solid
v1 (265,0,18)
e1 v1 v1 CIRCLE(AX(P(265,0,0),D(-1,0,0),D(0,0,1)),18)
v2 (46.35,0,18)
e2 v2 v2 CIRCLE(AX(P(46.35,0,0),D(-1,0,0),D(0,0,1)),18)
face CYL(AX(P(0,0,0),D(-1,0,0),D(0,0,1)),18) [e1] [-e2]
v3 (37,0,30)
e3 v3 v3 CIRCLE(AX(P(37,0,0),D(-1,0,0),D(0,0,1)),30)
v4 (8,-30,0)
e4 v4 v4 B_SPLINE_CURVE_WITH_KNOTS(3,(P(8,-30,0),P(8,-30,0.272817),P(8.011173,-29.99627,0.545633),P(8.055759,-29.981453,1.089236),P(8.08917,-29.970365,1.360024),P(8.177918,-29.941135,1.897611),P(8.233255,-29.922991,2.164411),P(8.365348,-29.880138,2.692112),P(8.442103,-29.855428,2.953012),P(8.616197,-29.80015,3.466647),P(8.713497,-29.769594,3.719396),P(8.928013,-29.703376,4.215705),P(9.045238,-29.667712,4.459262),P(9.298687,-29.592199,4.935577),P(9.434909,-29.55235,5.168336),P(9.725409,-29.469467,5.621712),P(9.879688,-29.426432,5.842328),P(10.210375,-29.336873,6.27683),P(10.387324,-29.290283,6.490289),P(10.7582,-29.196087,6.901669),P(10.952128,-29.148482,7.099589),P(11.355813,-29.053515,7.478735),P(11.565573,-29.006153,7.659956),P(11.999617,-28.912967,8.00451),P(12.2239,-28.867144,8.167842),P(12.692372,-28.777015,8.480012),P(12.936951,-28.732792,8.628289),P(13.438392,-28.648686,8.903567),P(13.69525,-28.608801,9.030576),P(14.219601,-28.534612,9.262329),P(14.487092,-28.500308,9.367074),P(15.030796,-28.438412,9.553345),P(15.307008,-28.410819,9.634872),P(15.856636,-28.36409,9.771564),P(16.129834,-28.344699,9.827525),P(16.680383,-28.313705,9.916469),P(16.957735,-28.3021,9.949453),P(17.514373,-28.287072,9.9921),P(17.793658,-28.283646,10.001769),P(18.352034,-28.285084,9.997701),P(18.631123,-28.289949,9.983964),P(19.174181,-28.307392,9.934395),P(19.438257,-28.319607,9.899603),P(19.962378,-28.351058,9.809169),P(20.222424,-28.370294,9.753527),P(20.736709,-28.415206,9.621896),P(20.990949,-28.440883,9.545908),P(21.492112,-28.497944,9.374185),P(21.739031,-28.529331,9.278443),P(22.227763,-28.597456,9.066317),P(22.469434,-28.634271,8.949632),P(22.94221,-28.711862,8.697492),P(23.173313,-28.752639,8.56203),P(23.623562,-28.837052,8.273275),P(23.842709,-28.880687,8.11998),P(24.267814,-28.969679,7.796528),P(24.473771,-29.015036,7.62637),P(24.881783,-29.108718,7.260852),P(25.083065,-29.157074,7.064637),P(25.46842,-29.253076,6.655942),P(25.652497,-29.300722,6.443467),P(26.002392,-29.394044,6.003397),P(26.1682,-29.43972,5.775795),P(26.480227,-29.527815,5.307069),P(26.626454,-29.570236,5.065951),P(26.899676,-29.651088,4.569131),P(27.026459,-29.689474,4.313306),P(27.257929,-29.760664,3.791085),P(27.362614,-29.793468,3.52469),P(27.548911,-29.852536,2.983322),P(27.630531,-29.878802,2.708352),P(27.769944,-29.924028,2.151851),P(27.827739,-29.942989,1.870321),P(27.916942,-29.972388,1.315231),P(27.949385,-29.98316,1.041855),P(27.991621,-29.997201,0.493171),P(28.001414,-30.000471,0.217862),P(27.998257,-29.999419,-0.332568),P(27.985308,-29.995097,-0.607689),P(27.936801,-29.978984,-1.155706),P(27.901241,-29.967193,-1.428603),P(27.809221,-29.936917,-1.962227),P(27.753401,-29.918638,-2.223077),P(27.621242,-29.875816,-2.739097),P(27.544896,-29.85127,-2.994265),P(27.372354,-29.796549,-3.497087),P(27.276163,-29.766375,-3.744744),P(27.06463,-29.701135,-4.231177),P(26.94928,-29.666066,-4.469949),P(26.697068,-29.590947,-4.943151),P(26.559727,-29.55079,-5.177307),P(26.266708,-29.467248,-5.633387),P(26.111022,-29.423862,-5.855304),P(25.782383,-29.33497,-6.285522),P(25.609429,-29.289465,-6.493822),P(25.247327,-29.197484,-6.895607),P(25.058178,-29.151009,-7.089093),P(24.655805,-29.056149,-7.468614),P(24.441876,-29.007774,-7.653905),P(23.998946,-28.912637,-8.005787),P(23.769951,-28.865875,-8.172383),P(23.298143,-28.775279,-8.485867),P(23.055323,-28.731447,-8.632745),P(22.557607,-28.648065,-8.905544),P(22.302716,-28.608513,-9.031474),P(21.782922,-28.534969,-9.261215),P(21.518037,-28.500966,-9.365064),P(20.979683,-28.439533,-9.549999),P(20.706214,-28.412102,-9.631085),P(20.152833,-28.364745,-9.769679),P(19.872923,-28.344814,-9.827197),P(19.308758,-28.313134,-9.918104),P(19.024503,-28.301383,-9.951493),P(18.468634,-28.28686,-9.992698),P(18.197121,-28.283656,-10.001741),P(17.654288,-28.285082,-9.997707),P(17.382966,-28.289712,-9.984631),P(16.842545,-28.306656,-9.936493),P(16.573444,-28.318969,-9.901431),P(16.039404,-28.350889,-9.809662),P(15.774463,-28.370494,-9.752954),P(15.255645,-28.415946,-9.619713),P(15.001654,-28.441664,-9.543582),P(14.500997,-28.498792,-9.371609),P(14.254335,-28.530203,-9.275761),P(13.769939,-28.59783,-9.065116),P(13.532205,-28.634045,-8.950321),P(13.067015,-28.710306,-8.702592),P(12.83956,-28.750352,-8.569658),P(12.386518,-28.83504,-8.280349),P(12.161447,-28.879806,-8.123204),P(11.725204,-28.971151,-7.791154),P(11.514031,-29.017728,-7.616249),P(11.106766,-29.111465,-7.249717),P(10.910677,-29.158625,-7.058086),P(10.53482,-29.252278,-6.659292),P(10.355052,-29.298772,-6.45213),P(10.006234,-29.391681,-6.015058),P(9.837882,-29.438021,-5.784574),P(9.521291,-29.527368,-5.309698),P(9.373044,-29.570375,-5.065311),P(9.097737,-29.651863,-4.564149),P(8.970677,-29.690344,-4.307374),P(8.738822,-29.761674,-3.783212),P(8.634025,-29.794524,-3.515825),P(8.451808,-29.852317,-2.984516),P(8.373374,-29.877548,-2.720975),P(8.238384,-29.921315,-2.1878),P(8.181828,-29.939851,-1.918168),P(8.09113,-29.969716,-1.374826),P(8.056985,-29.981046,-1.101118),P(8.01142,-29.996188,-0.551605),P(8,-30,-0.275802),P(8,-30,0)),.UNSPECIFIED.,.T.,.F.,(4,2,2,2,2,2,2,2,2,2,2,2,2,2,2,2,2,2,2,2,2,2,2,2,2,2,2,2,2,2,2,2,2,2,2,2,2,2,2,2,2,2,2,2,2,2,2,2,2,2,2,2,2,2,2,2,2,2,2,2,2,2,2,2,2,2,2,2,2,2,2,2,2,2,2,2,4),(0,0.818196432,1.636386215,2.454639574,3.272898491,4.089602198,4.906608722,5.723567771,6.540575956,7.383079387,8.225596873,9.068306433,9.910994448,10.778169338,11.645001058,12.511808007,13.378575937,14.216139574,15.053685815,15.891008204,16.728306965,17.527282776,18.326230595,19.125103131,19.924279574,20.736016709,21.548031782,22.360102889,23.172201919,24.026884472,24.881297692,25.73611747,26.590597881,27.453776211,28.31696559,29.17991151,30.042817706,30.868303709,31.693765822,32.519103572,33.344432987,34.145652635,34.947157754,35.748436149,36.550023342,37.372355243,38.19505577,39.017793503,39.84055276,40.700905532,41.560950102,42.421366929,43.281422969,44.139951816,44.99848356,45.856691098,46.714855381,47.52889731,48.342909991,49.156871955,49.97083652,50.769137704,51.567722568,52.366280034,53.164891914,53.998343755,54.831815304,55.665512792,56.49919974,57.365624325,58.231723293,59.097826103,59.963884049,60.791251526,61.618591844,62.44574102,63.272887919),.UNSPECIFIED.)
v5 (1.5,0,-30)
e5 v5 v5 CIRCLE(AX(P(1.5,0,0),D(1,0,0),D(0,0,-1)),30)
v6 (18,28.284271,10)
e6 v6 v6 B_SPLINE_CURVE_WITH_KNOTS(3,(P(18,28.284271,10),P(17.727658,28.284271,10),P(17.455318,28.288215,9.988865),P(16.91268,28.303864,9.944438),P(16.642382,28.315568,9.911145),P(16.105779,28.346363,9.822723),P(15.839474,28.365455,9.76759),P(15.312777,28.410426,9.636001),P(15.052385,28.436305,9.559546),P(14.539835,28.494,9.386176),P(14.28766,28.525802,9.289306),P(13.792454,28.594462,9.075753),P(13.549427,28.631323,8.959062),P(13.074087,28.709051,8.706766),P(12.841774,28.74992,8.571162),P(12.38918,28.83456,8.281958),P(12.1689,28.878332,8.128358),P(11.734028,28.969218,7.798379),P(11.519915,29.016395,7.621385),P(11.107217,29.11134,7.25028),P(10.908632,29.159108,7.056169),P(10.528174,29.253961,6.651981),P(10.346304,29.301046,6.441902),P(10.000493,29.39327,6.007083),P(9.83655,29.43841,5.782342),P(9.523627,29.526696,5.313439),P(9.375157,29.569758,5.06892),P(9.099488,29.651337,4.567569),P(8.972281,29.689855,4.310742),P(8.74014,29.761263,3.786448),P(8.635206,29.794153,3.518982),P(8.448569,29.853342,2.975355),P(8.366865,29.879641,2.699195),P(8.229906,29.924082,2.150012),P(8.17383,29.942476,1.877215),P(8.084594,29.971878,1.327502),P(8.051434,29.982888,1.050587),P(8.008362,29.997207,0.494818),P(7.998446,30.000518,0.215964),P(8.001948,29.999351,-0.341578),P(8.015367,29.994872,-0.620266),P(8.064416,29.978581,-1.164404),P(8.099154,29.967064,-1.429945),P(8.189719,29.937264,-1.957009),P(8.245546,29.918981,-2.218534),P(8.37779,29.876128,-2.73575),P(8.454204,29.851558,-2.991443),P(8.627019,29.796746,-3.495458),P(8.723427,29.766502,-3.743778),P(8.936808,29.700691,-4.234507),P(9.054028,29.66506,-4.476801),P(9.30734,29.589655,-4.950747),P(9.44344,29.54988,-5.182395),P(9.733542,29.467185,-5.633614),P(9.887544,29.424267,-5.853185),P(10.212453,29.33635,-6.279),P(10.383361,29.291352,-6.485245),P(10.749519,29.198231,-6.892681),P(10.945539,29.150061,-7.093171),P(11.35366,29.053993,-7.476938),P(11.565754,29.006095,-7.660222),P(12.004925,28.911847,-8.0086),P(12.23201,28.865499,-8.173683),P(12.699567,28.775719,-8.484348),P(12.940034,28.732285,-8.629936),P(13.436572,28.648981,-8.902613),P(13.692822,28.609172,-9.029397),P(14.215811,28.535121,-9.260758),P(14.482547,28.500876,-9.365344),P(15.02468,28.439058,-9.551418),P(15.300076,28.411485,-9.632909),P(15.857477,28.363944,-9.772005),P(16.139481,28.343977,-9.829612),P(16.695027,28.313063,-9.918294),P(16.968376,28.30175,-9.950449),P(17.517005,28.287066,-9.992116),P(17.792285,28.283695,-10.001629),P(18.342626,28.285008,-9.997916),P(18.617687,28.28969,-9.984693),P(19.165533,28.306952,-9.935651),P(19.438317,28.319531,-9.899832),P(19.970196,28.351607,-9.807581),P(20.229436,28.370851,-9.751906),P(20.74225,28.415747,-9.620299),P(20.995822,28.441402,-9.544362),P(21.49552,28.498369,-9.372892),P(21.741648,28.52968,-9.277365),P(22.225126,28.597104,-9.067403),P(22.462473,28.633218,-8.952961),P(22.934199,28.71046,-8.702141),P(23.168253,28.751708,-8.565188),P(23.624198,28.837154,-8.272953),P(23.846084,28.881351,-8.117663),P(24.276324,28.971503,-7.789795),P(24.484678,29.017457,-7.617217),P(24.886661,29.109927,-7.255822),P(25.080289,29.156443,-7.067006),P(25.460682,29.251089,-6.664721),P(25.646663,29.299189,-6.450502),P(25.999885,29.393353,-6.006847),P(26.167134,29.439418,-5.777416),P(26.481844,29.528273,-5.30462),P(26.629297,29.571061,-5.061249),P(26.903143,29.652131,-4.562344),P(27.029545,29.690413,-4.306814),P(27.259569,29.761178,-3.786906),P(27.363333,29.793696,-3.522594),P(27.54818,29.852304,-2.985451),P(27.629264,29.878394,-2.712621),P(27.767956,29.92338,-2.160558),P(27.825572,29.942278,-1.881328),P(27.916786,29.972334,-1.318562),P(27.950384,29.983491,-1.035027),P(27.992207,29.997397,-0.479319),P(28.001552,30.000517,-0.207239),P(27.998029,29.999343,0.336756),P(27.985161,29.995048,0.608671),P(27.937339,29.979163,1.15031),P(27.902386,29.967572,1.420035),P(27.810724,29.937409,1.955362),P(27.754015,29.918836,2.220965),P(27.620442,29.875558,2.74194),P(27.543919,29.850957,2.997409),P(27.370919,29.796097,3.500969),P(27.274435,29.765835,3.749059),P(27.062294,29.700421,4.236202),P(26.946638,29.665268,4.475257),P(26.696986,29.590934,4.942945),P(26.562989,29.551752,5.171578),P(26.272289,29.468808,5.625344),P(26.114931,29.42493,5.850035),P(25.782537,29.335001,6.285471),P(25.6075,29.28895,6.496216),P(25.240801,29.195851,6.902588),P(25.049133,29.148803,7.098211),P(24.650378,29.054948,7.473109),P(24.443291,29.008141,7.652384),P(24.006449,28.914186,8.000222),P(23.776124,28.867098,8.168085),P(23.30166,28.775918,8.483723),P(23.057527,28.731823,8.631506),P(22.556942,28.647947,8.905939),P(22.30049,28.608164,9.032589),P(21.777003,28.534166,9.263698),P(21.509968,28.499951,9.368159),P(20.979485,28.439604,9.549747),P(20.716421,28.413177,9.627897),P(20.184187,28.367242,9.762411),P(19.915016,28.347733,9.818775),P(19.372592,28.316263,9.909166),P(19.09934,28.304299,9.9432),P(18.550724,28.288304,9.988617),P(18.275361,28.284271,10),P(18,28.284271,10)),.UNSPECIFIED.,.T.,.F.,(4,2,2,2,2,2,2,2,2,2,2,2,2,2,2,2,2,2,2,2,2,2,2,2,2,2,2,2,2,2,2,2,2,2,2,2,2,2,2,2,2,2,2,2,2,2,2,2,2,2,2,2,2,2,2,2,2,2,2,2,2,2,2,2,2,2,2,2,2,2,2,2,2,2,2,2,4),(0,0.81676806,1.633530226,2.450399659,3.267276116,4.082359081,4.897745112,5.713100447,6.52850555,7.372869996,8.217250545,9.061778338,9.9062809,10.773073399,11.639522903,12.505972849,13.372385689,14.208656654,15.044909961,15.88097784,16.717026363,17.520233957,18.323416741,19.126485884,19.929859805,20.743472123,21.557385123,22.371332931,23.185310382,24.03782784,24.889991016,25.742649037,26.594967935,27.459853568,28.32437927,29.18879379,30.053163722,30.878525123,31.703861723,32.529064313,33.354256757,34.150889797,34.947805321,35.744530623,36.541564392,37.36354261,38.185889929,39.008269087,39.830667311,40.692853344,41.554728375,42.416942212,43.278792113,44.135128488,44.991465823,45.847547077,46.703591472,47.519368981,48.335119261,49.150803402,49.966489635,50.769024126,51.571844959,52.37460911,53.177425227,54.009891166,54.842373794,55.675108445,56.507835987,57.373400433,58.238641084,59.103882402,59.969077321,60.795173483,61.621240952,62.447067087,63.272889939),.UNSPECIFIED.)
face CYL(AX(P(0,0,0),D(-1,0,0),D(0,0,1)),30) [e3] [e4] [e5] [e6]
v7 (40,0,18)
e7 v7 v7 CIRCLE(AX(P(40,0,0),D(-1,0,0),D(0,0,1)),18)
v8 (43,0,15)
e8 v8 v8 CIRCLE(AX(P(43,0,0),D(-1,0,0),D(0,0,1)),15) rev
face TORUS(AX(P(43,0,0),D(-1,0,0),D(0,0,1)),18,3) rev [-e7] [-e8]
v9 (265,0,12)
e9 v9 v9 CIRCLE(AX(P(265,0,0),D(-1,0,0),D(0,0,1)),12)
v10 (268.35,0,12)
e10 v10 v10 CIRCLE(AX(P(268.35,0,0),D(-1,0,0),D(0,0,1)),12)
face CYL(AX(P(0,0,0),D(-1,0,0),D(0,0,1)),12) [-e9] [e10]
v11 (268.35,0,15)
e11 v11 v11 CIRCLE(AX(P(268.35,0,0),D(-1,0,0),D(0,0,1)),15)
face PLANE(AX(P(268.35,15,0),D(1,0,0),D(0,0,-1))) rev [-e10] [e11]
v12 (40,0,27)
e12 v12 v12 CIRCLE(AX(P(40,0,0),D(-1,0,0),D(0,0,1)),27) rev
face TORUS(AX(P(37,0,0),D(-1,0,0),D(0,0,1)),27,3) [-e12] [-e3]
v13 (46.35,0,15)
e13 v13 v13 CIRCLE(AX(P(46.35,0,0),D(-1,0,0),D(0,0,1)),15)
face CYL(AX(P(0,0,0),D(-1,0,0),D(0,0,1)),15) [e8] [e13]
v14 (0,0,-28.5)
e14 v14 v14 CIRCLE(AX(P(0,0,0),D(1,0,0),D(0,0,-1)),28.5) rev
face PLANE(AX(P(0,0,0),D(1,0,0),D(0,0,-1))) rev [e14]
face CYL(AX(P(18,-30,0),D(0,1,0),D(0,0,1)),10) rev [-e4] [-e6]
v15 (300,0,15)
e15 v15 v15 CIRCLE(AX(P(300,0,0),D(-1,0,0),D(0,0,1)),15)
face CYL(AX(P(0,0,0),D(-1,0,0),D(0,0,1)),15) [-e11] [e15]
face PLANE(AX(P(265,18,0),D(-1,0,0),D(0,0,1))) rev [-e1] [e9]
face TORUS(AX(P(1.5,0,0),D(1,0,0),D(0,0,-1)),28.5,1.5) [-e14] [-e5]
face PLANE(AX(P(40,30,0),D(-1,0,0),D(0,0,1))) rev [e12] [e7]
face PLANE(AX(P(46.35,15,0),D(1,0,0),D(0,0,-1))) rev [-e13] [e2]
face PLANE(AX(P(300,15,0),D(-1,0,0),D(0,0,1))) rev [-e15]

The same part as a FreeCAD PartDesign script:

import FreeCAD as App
import Part
import Sketcher
Q = App.Units.Quantity


def edges_at(feature, points):
    """Names of the edges that pass closest to the given points."""
    edges = feature.Shape.Edges
    near = lambda p: min(range(len(edges)), key=lambda i: edges[i].distToShape(Part.Vertex(*p))[0])
    return sorted({f"Edge{near(p) + 1}" for p in points})

doc = App.newDocument("Part")
params = doc.addObject("Spreadsheet::Sheet", "Params")
for row, (alias, value) in enumerate([
    ("sketch1_width", "300 mm"),
    ("sketch1_width2", "40 mm"),
    ("sketch1_height", "30 mm"),
    ("sketch1_height2", "3 mm"),
    ("sketch1_width3", "31.65 mm"),
    ("revolution_angle", "360 deg"),
    ("fillet_radius", "1.5 mm"),
    ("sketch2_diameter", "20 mm"),
    ("fillet2_radius", "3 mm"),
], start=1):
    params.set(f"A{row}", alias)
    params.set(f"B{row}", "=" + value)
    params.setAlias(f"B{row}", alias)

body = doc.addObject("PartDesign::Body", "Body")

sketch1 = body.newObject("Sketcher::SketchObject", "Sketch")
sketch1.AttachmentSupport = (doc.getObject("XY_Plane"), [""])
sketch1.MapMode = "FlatFace"
sketch1.addGeometry([
    Part.LineSegment(App.Vector(0, 30, 0), App.Vector(0, 0, 0)),
    Part.LineSegment(App.Vector(0, 0, 0), App.Vector(300, 0, 0)),
    Part.LineSegment(App.Vector(300, 0, 0), App.Vector(300, 15, 0)),
    Part.LineSegment(App.Vector(300, 15, 0), App.Vector(268.35, 15, 0)),
    Part.LineSegment(App.Vector(268.35, 15, 0), App.Vector(268.35, 12, 0)),
    Part.LineSegment(App.Vector(268.35, 12, 0), App.Vector(265, 12, 0)),
    Part.LineSegment(App.Vector(265, 12, 0), App.Vector(265, 18, 0)),
    Part.LineSegment(App.Vector(265, 18, 0), App.Vector(46.35, 18, 0)),
    Part.LineSegment(App.Vector(46.35, 18, 0), App.Vector(46.35, 15, 0)),
    Part.LineSegment(App.Vector(46.35, 15, 0), App.Vector(40, 15, 0)),
    Part.LineSegment(App.Vector(40, 15, 0), App.Vector(40, 30, 0)),
    Part.LineSegment(App.Vector(40, 30, 0), App.Vector(0, 30, 0)),
], False)
sketch1.addConstraint([
    Sketcher.Constraint("Coincident", 0, 2, 1, 1),
    Sketcher.Constraint("Coincident", 1, 2, 2, 1),
    Sketcher.Constraint("Coincident", 2, 2, 3, 1),
    Sketcher.Constraint("Coincident", 3, 2, 4, 1),
    Sketcher.Constraint("Coincident", 4, 2, 5, 1),
    Sketcher.Constraint("Coincident", 5, 2, 6, 1),
    Sketcher.Constraint("Coincident", 6, 2, 7, 1),
    Sketcher.Constraint("Coincident", 7, 2, 8, 1),
    Sketcher.Constraint("Coincident", 8, 2, 9, 1),
    Sketcher.Constraint("Coincident", 9, 2, 10, 1),
    Sketcher.Constraint("Coincident", 10, 2, 11, 1),
    Sketcher.Constraint("Coincident", 11, 2, 0, 1),
    Sketcher.Constraint("Vertical", 0),
    Sketcher.Constraint("Horizontal", 1),
    Sketcher.Constraint("Vertical", 2),
    Sketcher.Constraint("Horizontal", 3),
    Sketcher.Constraint("Vertical", 4),
    Sketcher.Constraint("Horizontal", 5),
    Sketcher.Constraint("Vertical", 6),
    Sketcher.Constraint("Horizontal", 7),
    Sketcher.Constraint("Vertical", 8),
    Sketcher.Constraint("Horizontal", 9),
    Sketcher.Constraint("Vertical", 10),
    Sketcher.Constraint("Horizontal", 11),
    Sketcher.Constraint("Coincident", 0, 2, -1, 1),
    Sketcher.Constraint("Horizontal", 3, 2, 8, 2),
    Sketcher.Constraint("Equal", 4, 8),
    Sketcher.Constraint("Equal", 2, 10),
    Sketcher.Constraint("DistanceX", 1, 1, 1, 2, Q("300 mm")),
    Sketcher.Constraint("DistanceX", 11, 2, 11, 1, Q("40 mm")),
    Sketcher.Constraint("DistanceY", 0, 2, 0, 1, Q("30 mm")),
    Sketcher.Constraint("DistanceY", 4, 2, 4, 1, Q("3 mm")),
    Sketcher.Constraint("DistanceX", -1, 1, 5, 2, Q("265 mm")),
    Sketcher.Constraint("DistanceX", 7, 2, 3, 2, Q("222 mm")),
    Sketcher.Constraint("DistanceX", 3, 2, 3, 1, Q("31.65 mm")),
])
sketch1.setExpression("Constraints[28]", "Params.sketch1_width")
sketch1.setExpression("Constraints[29]", "Params.sketch1_width2")
sketch1.setExpression("Constraints[30]", "Params.sketch1_height")
sketch1.setExpression("Constraints[31]", "Params.sketch1_height2")
sketch1.setExpression("Constraints[34]", "Params.sketch1_width3")
revolution = body.newObject("PartDesign::Revolution", "Revolution")
revolution.Profile = sketch1
revolution.ReferenceAxis = (sketch1, ["H_Axis"])
revolution.setExpression("Angle", "Params.revolution_angle")
doc.recompute()

fillet = body.newObject("PartDesign::Fillet", "Fillet")
fillet.Base = (revolution, edges_at(revolution, [(0, 0, -30)]))
fillet.setExpression("Radius", "Params.fillet_radius")

sketch2 = body.newObject("Sketcher::SketchObject", "Sketch001")
sketch2.AttachmentSupport = (doc.getObject("XZ_Plane"), [""])
sketch2.MapMode = "FlatFace"
sketch2.addGeometry(Part.Circle(App.Vector(18, 0, 0), App.Vector(0, 0, 1), 10), False)
sketch2.addConstraint([
    Sketcher.Constraint("PointOnObject", 0, 3, -1),
    Sketcher.Constraint("Diameter", 0, Q("20 mm")),
    Sketcher.Constraint("DistanceX", -1, 1, 0, 3, Q("18 mm")),
])
sketch2.setExpression("Constraints[1]", "Params.sketch2_diameter")
pocket1 = body.newObject("PartDesign::Pocket", "Pocket")
pocket1.Profile = sketch2
pocket1.Type = "ThroughAll"
pocket1.Midplane = True
doc.recompute()

fillet2 = body.newObject("PartDesign::Fillet", "Fillet001")
fillet2.Base = (pocket1, edges_at(pocket1, [(40, 0, -15), (40, 0, -30)]))
fillet2.setExpression("Radius", "Params.fillet2_radius")

doc.recompute()
